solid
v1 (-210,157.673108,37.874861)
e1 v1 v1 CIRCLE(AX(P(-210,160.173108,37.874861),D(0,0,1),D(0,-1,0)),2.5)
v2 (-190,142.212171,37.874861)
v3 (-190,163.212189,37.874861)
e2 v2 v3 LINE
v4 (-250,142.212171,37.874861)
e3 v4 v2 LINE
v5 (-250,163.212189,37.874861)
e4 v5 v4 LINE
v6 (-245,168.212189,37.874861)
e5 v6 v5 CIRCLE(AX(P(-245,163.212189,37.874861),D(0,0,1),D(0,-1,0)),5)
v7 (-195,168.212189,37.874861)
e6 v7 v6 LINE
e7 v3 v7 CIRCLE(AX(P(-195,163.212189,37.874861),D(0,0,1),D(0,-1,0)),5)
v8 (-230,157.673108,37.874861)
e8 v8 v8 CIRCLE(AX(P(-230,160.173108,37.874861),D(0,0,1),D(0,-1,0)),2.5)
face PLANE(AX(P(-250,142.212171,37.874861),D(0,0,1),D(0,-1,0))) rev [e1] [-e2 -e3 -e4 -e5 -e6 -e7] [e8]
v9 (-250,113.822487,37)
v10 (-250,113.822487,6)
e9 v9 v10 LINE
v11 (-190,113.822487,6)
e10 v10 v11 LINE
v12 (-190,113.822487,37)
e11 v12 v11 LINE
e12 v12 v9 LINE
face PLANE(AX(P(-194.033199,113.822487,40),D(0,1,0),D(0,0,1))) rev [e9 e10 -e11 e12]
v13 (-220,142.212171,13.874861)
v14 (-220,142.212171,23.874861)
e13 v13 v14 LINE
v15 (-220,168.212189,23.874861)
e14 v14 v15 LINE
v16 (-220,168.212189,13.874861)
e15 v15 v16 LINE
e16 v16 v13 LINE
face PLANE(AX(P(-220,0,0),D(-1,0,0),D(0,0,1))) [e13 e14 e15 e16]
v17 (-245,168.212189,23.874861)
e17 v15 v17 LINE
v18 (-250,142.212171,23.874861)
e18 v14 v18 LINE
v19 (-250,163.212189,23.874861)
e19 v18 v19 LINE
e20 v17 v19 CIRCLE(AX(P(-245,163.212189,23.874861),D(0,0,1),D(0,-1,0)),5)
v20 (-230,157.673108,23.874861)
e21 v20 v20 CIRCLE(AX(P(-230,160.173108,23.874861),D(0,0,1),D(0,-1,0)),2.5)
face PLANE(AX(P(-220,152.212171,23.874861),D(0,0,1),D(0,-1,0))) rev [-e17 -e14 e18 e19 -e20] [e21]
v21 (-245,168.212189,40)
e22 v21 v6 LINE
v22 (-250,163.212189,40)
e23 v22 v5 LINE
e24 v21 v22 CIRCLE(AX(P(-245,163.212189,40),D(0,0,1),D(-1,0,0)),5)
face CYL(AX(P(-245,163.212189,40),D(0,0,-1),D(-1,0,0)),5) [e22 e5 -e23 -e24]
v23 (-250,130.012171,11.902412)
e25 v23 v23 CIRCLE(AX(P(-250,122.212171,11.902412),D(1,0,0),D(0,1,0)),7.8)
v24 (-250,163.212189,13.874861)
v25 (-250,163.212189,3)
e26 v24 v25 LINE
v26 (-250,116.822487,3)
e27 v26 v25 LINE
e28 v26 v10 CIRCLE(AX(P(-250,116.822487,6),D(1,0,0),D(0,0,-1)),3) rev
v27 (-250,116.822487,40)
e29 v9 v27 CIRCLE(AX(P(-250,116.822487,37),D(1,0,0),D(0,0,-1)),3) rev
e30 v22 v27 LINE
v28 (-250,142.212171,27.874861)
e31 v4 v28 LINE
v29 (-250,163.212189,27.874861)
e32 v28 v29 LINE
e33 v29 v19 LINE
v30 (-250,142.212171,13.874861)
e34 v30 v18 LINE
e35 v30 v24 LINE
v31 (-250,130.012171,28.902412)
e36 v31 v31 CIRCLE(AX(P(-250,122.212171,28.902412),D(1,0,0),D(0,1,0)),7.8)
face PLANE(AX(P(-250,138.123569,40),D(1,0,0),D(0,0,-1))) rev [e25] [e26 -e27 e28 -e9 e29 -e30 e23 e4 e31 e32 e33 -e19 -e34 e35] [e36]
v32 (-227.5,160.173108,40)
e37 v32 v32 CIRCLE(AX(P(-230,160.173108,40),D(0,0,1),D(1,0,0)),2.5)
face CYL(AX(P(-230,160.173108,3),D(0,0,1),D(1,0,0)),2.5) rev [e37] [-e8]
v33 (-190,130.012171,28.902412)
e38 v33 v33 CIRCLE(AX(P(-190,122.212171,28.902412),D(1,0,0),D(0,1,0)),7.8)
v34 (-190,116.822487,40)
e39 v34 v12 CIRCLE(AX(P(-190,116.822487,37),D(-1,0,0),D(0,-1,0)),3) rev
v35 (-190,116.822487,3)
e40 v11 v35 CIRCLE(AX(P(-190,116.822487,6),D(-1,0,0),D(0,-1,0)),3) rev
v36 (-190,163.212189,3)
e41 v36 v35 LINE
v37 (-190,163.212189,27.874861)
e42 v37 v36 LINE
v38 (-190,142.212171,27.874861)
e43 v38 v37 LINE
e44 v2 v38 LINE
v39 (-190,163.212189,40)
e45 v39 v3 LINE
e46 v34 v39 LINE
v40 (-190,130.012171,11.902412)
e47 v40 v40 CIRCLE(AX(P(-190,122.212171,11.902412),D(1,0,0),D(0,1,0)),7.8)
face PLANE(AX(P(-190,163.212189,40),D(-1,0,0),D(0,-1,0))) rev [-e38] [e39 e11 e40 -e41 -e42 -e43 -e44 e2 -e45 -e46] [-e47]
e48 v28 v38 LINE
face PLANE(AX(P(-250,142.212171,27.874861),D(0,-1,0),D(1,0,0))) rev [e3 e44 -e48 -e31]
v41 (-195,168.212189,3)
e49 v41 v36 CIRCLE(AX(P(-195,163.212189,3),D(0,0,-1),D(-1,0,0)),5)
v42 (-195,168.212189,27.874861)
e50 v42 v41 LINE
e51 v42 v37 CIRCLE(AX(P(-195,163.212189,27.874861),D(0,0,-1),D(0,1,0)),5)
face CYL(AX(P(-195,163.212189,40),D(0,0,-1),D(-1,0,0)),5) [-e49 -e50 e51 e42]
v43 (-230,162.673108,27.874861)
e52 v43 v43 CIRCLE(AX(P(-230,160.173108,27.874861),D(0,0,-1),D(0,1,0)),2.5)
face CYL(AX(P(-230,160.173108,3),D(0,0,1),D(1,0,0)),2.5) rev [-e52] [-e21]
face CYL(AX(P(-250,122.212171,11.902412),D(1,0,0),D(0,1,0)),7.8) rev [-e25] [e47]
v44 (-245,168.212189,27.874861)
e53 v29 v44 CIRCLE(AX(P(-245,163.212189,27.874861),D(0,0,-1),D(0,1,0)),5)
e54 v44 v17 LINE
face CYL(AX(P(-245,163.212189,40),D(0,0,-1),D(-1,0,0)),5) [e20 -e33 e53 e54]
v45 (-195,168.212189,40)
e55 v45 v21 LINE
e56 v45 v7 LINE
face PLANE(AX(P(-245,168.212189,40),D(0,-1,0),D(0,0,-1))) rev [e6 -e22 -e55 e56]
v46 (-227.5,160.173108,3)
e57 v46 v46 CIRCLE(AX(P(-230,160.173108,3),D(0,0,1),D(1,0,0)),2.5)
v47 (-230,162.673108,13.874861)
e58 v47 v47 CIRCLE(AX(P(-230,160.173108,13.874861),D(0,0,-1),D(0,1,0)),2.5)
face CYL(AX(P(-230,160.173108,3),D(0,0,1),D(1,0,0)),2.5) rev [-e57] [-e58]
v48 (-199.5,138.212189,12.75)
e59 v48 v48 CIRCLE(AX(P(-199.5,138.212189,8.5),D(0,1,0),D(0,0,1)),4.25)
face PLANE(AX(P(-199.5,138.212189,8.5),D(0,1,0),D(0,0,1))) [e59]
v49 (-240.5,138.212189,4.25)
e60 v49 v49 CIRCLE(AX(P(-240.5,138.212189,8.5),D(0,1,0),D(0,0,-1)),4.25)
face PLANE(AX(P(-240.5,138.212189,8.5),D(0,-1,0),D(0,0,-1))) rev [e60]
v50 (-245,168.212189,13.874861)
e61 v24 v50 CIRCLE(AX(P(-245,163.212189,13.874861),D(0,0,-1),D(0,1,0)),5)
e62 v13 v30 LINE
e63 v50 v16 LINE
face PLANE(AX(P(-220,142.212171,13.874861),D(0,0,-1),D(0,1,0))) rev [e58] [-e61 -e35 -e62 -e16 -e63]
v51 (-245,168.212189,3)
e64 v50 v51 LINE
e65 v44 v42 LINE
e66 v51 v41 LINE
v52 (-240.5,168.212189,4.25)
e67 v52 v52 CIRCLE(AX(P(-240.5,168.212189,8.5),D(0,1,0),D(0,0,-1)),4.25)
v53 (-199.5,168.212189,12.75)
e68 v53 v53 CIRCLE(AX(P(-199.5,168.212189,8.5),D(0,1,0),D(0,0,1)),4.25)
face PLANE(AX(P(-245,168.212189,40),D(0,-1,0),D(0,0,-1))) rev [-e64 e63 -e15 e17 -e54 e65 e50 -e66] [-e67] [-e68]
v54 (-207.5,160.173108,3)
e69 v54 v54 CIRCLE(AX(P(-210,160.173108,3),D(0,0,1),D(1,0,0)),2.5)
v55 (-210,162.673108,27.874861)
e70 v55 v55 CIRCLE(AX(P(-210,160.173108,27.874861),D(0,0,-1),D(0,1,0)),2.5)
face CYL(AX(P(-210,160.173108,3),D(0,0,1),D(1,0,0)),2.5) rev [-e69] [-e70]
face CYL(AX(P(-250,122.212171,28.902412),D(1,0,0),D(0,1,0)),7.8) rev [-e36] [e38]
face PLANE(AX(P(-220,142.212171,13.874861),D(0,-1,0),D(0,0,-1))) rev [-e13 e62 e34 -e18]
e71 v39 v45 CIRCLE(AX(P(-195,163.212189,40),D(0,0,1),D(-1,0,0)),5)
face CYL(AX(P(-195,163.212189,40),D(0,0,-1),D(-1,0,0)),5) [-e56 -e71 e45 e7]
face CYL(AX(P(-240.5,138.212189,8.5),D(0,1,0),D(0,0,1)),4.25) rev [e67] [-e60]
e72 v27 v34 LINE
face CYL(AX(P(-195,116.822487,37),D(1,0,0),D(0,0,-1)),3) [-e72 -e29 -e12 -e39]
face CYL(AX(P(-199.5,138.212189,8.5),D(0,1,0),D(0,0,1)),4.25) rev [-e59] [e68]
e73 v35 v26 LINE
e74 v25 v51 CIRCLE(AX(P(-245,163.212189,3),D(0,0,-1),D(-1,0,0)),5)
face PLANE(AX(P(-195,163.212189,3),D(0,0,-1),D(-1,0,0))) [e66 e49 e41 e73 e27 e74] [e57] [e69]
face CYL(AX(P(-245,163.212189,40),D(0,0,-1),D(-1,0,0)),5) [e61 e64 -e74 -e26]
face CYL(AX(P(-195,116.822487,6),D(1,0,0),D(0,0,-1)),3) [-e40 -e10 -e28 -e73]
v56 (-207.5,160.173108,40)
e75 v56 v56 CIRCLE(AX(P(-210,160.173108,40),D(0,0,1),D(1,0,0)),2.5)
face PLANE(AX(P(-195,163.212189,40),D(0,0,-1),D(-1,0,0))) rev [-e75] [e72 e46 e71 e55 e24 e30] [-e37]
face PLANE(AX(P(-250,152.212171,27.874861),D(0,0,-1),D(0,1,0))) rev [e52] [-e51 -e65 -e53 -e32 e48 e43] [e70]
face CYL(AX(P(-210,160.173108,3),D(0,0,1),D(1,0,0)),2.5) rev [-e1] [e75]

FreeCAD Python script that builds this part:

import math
import FreeCAD as App
import Part
import Sketcher
Q = App.Units.Quantity


def edges_at(feature, points):
    """Names of the edges that pass closest to the given points."""
    edges = feature.Shape.Edges
    near = lambda p: min(range(len(edges)), key=lambda i: edges[i].distToShape(Part.Vertex(*p))[0])
    return sorted({f"Edge{near(p) + 1}" for p in points})

doc = App.newDocument("Part")
body = doc.addObject("PartDesign::Body", "Body")

# Sketch on XY plane
sketch1 = doc.addObject("Sketcher::SketchObject", "Sketch")
body.addObject(sketch1)
sketch1.AttachmentSupport = (doc.XY_Plane, [""])
sketch1.MapMode = "FlatFace"
sketch1.addGeometry(Part.LineSegment(App.Vector(-190, 113.822487, 0), App.Vector(-190, 163.212189, 0)), False)
sketch1.addGeometry(Part.ArcOfCircle(Part.Circle(App.Vector(-195, 163.212189, 0), App.Vector(0, 0, 1), 5), math.radians(0), math.radians(90)), False)
sketch1.addGeometry(Part.LineSegment(App.Vector(-195, 168.212189, 0), App.Vector(-245, 168.212189, 0)), False)
sketch1.addGeometry(Part.ArcOfCircle(Part.Circle(App.Vector(-245, 163.212189, 0), App.Vector(0, 0, 1), 5), math.radians(90), math.radians(180)), False)
sketch1.addGeometry(Part.LineSegment(App.Vector(-250, 163.212189, 0), App.Vector(-250, 113.822487, 0)), False)
sketch1.addGeometry(Part.LineSegment(App.Vector(-250, 113.822487, 0), App.Vector(-190, 113.822487, 0)), False)
sketch1.addConstraint(Sketcher.Constraint("Tangent", 0, 2, 1, 1))
sketch1.addConstraint(Sketcher.Constraint("Tangent", 1, 2, 2, 1))
sketch1.addConstraint(Sketcher.Constraint("Tangent", 2, 2, 3, 1))
sketch1.addConstraint(Sketcher.Constraint("Tangent", 3, 2, 4, 1))
sketch1.addConstraint(Sketcher.Constraint("Coincident", 4, 2, 5, 1))
sketch1.addConstraint(Sketcher.Constraint("Coincident", 5, 2, 0, 1))
sketch1.addConstraint(Sketcher.Constraint("Vertical", 0))
sketch1.addConstraint(Sketcher.Constraint("Horizontal", 2))
sketch1.addConstraint(Sketcher.Constraint("Vertical", 4))
sketch1.addConstraint(Sketcher.Constraint("Horizontal", 5))
sketch1.addConstraint(Sketcher.Constraint("Equal", 1, 3))
sketch1.addConstraint(Sketcher.Constraint("Radius", 1, Q("5 mm")))
sketch1.addConstraint(Sketcher.Constraint("DistanceX", 2, 2, 2, 1, Q("50 mm")))
sketch1.addConstraint(Sketcher.Constraint("DistanceX", 1, 3, -1, 1, Q("195 mm")))
sketch1.addConstraint(Sketcher.Constraint("DistanceY", 0, 1, 0, 2, Q("49.389703 mm")))
sketch1.addConstraint(Sketcher.Constraint("DistanceY", -1, 1, 1, 3, Q("163.212189 mm")))
pad1 = doc.addObject("PartDesign::Pad", "Pad")
body.addObject(pad1)
pad1.Profile = sketch1
pad1.Length = 40

# Sketch on YZ plane
sketch2 = doc.addObject("Sketcher::SketchObject", "Sketch001")
body.addObject(sketch2)
sketch2.AttachmentSupport = (doc.YZ_Plane, [""])
sketch2.MapMode = "FlatFace"
sketch2.AttachmentOffset = App.Placement(App.Vector(0, 0, -190), App.Rotation())
sketch2.addGeometry(Part.Circle(App.Vector(122.212171, 11.902412, 0), App.Vector(0, 0, 1), 7.8), False)
sketch2.addGeometry(Part.Circle(App.Vector(122.212171, 28.902412, 0), App.Vector(0, 0, 1), 7.8), False)
sketch2.addConstraint(Sketcher.Constraint("Equal", 0, 1))
sketch2.addConstraint(Sketcher.Constraint("Vertical", 0, 3, 1, 3))
sketch2.addConstraint(Sketcher.Constraint("Diameter", 0, Q("15.6 mm")))
sketch2.addConstraint(Sketcher.Constraint("DistanceY", 0, 3, 1, 3, Q("17 mm")))
sketch2.addConstraint(Sketcher.Constraint("DistanceX", -1, 1, 0, 3, Q("122.212171 mm")))
sketch2.addConstraint(Sketcher.Constraint("DistanceY", -1, 1, 0, 3, Q("11.902412 mm")))
pocket1 = doc.addObject("PartDesign::Pocket", "Pocket")
body.addObject(pocket1)
pocket1.Profile = sketch2
pocket1.Type = "ThroughAll"

# Sketch on XY plane
sketch3 = doc.addObject("Sketcher::SketchObject", "Sketch002")
body.addObject(sketch3)
sketch3.AttachmentSupport = (doc.XY_Plane, [""])
sketch3.MapMode = "FlatFace"
sketch3.addGeometry(Part.LineSegment(App.Vector(-190, 163.212189, 0), App.Vector(-190, 113.822487, 0)), False)
sketch3.addGeometry(Part.LineSegment(App.Vector(-190, 113.822487, 0), App.Vector(-250, 113.822487, 0)), False)
sketch3.addGeometry(Part.LineSegment(App.Vector(-250, 113.822487, 0), App.Vector(-250, 163.212189, 0)), False)
sketch3.addGeometry(Part.ArcOfCircle(Part.Circle(App.Vector(-245, 163.212189, 0), App.Vector(0, 0, 1), 5), math.radians(90), math.radians(180)), False)
sketch3.addGeometry(Part.LineSegment(App.Vector(-245, 168.212189, 0), App.Vector(-195, 168.212189, 0)), False)
sketch3.addGeometry(Part.ArcOfCircle(Part.Circle(App.Vector(-195, 163.212189, 0), App.Vector(0, 0, 1), 5), math.radians(0), math.radians(90)), False)
sketch3.addConstraint(Sketcher.Constraint("Coincident", 0, 2, 1, 1))
sketch3.addConstraint(Sketcher.Constraint("Coincident", 1, 2, 2, 1))
sketch3.addConstraint(Sketcher.Constraint("Tangent", 2, 2, 3, 2))
sketch3.addConstraint(Sketcher.Constraint("Tangent", 3, 1, 4, 1))
sketch3.addConstraint(Sketcher.Constraint("Tangent", 4, 2, 5, 2))
sketch3.addConstraint(Sketcher.Constraint("Tangent", 5, 1, 0, 1))
sketch3.addConstraint(Sketcher.Constraint("Vertical", 0))
sketch3.addConstraint(Sketcher.Constraint("Horizontal", 1))
sketch3.addConstraint(Sketcher.Constraint("Vertical", 2))
sketch3.addConstraint(Sketcher.Constraint("Horizontal", 4))
sketch3.addConstraint(Sketcher.Constraint("Equal", 3, 5))
sketch3.addConstraint(Sketcher.Constraint("Radius", 3, Q("5 mm")))
sketch3.addConstraint(Sketcher.Constraint("DistanceX", 1, 2, 1, 1, Q("60 mm")))
sketch3.addConstraint(Sketcher.Constraint("DistanceX", 3, 3, -1, 1, Q("245 mm")))
sketch3.addConstraint(Sketcher.Constraint("DistanceY", 0, 2, 0, 1, Q("49.389703 mm")))
sketch3.addConstraint(Sketcher.Constraint("DistanceY", -1, 1, 3, 3, Q("163.212189 mm")))
pocket2 = doc.addObject("PartDesign::Pocket", "Pocket001")
body.addObject(pocket2)
pocket2.Profile = sketch3
pocket2.Length = 3
pocket2.Reversed = True
doc.recompute()

fillet = doc.addObject("PartDesign::Fillet", "Fillet")
body.addObject(fillet)
fillet.Base = (pocket2, edges_at(pocket2, [(-220, 113.822, 40), (-220, 113.822, 3)]))
fillet.Radius = 3

# Sketch on YZ plane
sketch4 = doc.addObject("Sketcher::SketchObject", "Sketch003")
body.addObject(sketch4)
sketch4.AttachmentSupport = (doc.YZ_Plane, [""])
sketch4.MapMode = "FlatFace"
sketch4.AttachmentOffset = App.Placement(App.Vector(0, 0, -190), App.Rotation())
sketch4.addGeometry(Part.LineSegment(App.Vector(170.639409, 37.874861, 0), App.Vector(142.212171, 37.874861, 0)), False)
sketch4.addGeometry(Part.LineSegment(App.Vector(142.212171, 37.874861, 0), App.Vector(142.212171, 27.874861, 0)), False)
sketch4.addGeometry(Part.LineSegment(App.Vector(142.212171, 27.874861, 0), App.Vector(170.639409, 27.874861, 0)), False)
sketch4.addGeometry(Part.LineSegment(App.Vector(170.639409, 27.874861, 0), App.Vector(170.639409, 37.874861, 0)), False)
sketch4.addConstraint(Sketcher.Constraint("Coincident", 0, 2, 1, 1))
sketch4.addConstraint(Sketcher.Constraint("Coincident", 1, 2, 2, 1))
sketch4.addConstraint(Sketcher.Constraint("Coincident", 2, 2, 3, 1))
sketch4.addConstraint(Sketcher.Constraint("Coincident", 3, 2, 0, 1))
sketch4.addConstraint(Sketcher.Constraint("Horizontal", 0))
sketch4.addConstraint(Sketcher.Constraint("Vertical", 1))
sketch4.addConstraint(Sketcher.Constraint("Horizontal", 2))
sketch4.addConstraint(Sketcher.Constraint("Vertical", 3))
sketch4.addConstraint(Sketcher.Constraint("DistanceY", 1, 2, 1, 1, Q("10 mm")))
sketch4.addConstraint(Sketcher.Constraint("DistanceX", 0, 2, 0, 1, Q("28.427238 mm")))
sketch4.addConstraint(Sketcher.Constraint("DistanceX", -1, 1, 0, 2, Q("142.212171 mm")))
sketch4.addConstraint(Sketcher.Constraint("DistanceY", -1, 1, 0, 2, Q("37.874861 mm")))
pocket3 = doc.addObject("PartDesign::Pocket", "Pocket002")
body.addObject(pocket3)
pocket3.Profile = sketch4
pocket3.Type = "ThroughAll"

# Sketch on YZ plane
sketch5 = doc.addObject("Sketcher::SketchObject", "Sketch004")
body.addObject(sketch5)
sketch5.AttachmentSupport = (doc.YZ_Plane, [""])
sketch5.MapMode = "FlatFace"
sketch5.AttachmentOffset = App.Placement(App.Vector(0, 0, -250), App.Rotation())
sketch5.addGeometry(Part.LineSegment(App.Vector(142.212171, 23.874861, 0), App.Vector(182.19152, 23.874861, 0)), False)
sketch5.addGeometry(Part.LineSegment(App.Vector(182.19152, 23.874861, 0), App.Vector(182.19152, 13.874861, 0)), False)
sketch5.addGeometry(Part.LineSegment(App.Vector(182.19152, 13.874861, 0), App.Vector(142.212171, 13.874861, 0)), False)
sketch5.addGeometry(Part.LineSegment(App.Vector(142.212171, 13.874861, 0), App.Vector(142.212171, 23.874861, 0)), False)
sketch5.addConstraint(Sketcher.Constraint("Coincident", 0, 2, 1, 1))
sketch5.addConstraint(Sketcher.Constraint("Coincident", 1, 2, 2, 1))
sketch5.addConstraint(Sketcher.Constraint("Coincident", 2, 2, 3, 1))
sketch5.addConstraint(Sketcher.Constraint("Coincident", 3, 2, 0, 1))
sketch5.addConstraint(Sketcher.Constraint("Horizontal", 0))
sketch5.addConstraint(Sketcher.Constraint("Vertical", 1))
sketch5.addConstraint(Sketcher.Constraint("Horizontal", 2))
sketch5.addConstraint(Sketcher.Constraint("Vertical", 3))
sketch5.addConstraint(Sketcher.Constraint("DistanceY", 1, 2, 1, 1, Q("10 mm")))
sketch5.addConstraint(Sketcher.Constraint("DistanceX", 0, 1, 0, 2, Q("39.979348 mm")))
sketch5.addConstraint(Sketcher.Constraint("DistanceX", -1, 1, 0, 2, Q("182.19152 mm")))
sketch5.addConstraint(Sketcher.Constraint("DistanceY", -1, 1, 0, 2, Q("23.874861 mm")))
pocket4 = doc.addObject("PartDesign::Pocket", "Pocket003")
body.addObject(pocket4)
pocket4.Profile = sketch5
pocket4.Length = 30
pocket4.Reversed = True

# Sketch on XY plane
sketch6 = doc.addObject("Sketcher::SketchObject", "Sketch005")
body.addObject(sketch6)
sketch6.AttachmentSupport = (doc.XY_Plane, [""])
sketch6.MapMode = "FlatFace"
sketch6.AttachmentOffset = App.Placement(App.Vector(0, 0, 40), App.Rotation())
sketch6.addGeometry(Part.Circle(App.Vector(-210, 160.173108, 0), App.Vector(0, 0, 1), 2.5), False)
sketch6.addGeometry(Part.Circle(App.Vector(-230, 160.173108, 0), App.Vector(0, 0, 1), 2.5), False)
sketch6.addConstraint(Sketcher.Constraint("Equal", 0, 1))
sketch6.addConstraint(Sketcher.Constraint("Horizontal", 0, 3, 1, 3))
sketch6.addConstraint(Sketcher.Constraint("Diameter", 0, Q("5 mm")))
sketch6.addConstraint(Sketcher.Constraint("DistanceX", 0, 3, -1, 1, Q("210 mm")))
sketch6.addConstraint(Sketcher.Constraint("DistanceX", 1, 3, -1, 1, Q("230 mm")))
sketch6.addConstraint(Sketcher.Constraint("DistanceY", -1, 1, 0, 3, Q("160.173108 mm")))
pocket5 = doc.addObject("PartDesign::Pocket", "Pocket004")
body.addObject(pocket5)
pocket5.Profile = sketch6
pocket5.Type = "ThroughAll"

# Sketch on XZ plane
sketch7 = doc.addObject("Sketcher::SketchObject", "Sketch006")
body.addObject(sketch7)
sketch7.AttachmentSupport = (doc.XZ_Plane, [""])
sketch7.MapMode = "FlatFace"
sketch7.AttachmentOffset = App.Placement(App.Vector(0, 0, -168.212189), App.Rotation())
sketch7.addGeometry(Part.Circle(App.Vector(-199.5, 8.5, 0), App.Vector(0, 0, 1), 4.25), False)
sketch7.addGeometry(Part.Circle(App.Vector(-240.5, 8.5, 0), App.Vector(0, 0, 1), 4.25), False)
sketch7.addConstraint(Sketcher.Constraint("Equal", 0, 1))
sketch7.addConstraint(Sketcher.Constraint("Horizontal", 0, 3, 1, 3))
sketch7.addConstraint(Sketcher.Constraint("Diameter", 0, Q("8.5 mm")))
sketch7.addConstraint(Sketcher.Constraint("DistanceX", 1, 3, 0, 3, Q("41 mm")))
sketch7.addConstraint(Sketcher.Constraint("DistanceX", 0, 3, -1, 1, Q("199.5 mm")))
sketch7.addConstraint(Sketcher.Constraint("DistanceY", -1, 1, 0, 3, Q("8.5 mm")))
pocket6 = doc.addObject("PartDesign::Pocket", "Pocket005")
body.addObject(pocket6)
pocket6.Profile = sketch7
pocket6.Length = 30
pocket6.Reversed = True

doc.recompute()
